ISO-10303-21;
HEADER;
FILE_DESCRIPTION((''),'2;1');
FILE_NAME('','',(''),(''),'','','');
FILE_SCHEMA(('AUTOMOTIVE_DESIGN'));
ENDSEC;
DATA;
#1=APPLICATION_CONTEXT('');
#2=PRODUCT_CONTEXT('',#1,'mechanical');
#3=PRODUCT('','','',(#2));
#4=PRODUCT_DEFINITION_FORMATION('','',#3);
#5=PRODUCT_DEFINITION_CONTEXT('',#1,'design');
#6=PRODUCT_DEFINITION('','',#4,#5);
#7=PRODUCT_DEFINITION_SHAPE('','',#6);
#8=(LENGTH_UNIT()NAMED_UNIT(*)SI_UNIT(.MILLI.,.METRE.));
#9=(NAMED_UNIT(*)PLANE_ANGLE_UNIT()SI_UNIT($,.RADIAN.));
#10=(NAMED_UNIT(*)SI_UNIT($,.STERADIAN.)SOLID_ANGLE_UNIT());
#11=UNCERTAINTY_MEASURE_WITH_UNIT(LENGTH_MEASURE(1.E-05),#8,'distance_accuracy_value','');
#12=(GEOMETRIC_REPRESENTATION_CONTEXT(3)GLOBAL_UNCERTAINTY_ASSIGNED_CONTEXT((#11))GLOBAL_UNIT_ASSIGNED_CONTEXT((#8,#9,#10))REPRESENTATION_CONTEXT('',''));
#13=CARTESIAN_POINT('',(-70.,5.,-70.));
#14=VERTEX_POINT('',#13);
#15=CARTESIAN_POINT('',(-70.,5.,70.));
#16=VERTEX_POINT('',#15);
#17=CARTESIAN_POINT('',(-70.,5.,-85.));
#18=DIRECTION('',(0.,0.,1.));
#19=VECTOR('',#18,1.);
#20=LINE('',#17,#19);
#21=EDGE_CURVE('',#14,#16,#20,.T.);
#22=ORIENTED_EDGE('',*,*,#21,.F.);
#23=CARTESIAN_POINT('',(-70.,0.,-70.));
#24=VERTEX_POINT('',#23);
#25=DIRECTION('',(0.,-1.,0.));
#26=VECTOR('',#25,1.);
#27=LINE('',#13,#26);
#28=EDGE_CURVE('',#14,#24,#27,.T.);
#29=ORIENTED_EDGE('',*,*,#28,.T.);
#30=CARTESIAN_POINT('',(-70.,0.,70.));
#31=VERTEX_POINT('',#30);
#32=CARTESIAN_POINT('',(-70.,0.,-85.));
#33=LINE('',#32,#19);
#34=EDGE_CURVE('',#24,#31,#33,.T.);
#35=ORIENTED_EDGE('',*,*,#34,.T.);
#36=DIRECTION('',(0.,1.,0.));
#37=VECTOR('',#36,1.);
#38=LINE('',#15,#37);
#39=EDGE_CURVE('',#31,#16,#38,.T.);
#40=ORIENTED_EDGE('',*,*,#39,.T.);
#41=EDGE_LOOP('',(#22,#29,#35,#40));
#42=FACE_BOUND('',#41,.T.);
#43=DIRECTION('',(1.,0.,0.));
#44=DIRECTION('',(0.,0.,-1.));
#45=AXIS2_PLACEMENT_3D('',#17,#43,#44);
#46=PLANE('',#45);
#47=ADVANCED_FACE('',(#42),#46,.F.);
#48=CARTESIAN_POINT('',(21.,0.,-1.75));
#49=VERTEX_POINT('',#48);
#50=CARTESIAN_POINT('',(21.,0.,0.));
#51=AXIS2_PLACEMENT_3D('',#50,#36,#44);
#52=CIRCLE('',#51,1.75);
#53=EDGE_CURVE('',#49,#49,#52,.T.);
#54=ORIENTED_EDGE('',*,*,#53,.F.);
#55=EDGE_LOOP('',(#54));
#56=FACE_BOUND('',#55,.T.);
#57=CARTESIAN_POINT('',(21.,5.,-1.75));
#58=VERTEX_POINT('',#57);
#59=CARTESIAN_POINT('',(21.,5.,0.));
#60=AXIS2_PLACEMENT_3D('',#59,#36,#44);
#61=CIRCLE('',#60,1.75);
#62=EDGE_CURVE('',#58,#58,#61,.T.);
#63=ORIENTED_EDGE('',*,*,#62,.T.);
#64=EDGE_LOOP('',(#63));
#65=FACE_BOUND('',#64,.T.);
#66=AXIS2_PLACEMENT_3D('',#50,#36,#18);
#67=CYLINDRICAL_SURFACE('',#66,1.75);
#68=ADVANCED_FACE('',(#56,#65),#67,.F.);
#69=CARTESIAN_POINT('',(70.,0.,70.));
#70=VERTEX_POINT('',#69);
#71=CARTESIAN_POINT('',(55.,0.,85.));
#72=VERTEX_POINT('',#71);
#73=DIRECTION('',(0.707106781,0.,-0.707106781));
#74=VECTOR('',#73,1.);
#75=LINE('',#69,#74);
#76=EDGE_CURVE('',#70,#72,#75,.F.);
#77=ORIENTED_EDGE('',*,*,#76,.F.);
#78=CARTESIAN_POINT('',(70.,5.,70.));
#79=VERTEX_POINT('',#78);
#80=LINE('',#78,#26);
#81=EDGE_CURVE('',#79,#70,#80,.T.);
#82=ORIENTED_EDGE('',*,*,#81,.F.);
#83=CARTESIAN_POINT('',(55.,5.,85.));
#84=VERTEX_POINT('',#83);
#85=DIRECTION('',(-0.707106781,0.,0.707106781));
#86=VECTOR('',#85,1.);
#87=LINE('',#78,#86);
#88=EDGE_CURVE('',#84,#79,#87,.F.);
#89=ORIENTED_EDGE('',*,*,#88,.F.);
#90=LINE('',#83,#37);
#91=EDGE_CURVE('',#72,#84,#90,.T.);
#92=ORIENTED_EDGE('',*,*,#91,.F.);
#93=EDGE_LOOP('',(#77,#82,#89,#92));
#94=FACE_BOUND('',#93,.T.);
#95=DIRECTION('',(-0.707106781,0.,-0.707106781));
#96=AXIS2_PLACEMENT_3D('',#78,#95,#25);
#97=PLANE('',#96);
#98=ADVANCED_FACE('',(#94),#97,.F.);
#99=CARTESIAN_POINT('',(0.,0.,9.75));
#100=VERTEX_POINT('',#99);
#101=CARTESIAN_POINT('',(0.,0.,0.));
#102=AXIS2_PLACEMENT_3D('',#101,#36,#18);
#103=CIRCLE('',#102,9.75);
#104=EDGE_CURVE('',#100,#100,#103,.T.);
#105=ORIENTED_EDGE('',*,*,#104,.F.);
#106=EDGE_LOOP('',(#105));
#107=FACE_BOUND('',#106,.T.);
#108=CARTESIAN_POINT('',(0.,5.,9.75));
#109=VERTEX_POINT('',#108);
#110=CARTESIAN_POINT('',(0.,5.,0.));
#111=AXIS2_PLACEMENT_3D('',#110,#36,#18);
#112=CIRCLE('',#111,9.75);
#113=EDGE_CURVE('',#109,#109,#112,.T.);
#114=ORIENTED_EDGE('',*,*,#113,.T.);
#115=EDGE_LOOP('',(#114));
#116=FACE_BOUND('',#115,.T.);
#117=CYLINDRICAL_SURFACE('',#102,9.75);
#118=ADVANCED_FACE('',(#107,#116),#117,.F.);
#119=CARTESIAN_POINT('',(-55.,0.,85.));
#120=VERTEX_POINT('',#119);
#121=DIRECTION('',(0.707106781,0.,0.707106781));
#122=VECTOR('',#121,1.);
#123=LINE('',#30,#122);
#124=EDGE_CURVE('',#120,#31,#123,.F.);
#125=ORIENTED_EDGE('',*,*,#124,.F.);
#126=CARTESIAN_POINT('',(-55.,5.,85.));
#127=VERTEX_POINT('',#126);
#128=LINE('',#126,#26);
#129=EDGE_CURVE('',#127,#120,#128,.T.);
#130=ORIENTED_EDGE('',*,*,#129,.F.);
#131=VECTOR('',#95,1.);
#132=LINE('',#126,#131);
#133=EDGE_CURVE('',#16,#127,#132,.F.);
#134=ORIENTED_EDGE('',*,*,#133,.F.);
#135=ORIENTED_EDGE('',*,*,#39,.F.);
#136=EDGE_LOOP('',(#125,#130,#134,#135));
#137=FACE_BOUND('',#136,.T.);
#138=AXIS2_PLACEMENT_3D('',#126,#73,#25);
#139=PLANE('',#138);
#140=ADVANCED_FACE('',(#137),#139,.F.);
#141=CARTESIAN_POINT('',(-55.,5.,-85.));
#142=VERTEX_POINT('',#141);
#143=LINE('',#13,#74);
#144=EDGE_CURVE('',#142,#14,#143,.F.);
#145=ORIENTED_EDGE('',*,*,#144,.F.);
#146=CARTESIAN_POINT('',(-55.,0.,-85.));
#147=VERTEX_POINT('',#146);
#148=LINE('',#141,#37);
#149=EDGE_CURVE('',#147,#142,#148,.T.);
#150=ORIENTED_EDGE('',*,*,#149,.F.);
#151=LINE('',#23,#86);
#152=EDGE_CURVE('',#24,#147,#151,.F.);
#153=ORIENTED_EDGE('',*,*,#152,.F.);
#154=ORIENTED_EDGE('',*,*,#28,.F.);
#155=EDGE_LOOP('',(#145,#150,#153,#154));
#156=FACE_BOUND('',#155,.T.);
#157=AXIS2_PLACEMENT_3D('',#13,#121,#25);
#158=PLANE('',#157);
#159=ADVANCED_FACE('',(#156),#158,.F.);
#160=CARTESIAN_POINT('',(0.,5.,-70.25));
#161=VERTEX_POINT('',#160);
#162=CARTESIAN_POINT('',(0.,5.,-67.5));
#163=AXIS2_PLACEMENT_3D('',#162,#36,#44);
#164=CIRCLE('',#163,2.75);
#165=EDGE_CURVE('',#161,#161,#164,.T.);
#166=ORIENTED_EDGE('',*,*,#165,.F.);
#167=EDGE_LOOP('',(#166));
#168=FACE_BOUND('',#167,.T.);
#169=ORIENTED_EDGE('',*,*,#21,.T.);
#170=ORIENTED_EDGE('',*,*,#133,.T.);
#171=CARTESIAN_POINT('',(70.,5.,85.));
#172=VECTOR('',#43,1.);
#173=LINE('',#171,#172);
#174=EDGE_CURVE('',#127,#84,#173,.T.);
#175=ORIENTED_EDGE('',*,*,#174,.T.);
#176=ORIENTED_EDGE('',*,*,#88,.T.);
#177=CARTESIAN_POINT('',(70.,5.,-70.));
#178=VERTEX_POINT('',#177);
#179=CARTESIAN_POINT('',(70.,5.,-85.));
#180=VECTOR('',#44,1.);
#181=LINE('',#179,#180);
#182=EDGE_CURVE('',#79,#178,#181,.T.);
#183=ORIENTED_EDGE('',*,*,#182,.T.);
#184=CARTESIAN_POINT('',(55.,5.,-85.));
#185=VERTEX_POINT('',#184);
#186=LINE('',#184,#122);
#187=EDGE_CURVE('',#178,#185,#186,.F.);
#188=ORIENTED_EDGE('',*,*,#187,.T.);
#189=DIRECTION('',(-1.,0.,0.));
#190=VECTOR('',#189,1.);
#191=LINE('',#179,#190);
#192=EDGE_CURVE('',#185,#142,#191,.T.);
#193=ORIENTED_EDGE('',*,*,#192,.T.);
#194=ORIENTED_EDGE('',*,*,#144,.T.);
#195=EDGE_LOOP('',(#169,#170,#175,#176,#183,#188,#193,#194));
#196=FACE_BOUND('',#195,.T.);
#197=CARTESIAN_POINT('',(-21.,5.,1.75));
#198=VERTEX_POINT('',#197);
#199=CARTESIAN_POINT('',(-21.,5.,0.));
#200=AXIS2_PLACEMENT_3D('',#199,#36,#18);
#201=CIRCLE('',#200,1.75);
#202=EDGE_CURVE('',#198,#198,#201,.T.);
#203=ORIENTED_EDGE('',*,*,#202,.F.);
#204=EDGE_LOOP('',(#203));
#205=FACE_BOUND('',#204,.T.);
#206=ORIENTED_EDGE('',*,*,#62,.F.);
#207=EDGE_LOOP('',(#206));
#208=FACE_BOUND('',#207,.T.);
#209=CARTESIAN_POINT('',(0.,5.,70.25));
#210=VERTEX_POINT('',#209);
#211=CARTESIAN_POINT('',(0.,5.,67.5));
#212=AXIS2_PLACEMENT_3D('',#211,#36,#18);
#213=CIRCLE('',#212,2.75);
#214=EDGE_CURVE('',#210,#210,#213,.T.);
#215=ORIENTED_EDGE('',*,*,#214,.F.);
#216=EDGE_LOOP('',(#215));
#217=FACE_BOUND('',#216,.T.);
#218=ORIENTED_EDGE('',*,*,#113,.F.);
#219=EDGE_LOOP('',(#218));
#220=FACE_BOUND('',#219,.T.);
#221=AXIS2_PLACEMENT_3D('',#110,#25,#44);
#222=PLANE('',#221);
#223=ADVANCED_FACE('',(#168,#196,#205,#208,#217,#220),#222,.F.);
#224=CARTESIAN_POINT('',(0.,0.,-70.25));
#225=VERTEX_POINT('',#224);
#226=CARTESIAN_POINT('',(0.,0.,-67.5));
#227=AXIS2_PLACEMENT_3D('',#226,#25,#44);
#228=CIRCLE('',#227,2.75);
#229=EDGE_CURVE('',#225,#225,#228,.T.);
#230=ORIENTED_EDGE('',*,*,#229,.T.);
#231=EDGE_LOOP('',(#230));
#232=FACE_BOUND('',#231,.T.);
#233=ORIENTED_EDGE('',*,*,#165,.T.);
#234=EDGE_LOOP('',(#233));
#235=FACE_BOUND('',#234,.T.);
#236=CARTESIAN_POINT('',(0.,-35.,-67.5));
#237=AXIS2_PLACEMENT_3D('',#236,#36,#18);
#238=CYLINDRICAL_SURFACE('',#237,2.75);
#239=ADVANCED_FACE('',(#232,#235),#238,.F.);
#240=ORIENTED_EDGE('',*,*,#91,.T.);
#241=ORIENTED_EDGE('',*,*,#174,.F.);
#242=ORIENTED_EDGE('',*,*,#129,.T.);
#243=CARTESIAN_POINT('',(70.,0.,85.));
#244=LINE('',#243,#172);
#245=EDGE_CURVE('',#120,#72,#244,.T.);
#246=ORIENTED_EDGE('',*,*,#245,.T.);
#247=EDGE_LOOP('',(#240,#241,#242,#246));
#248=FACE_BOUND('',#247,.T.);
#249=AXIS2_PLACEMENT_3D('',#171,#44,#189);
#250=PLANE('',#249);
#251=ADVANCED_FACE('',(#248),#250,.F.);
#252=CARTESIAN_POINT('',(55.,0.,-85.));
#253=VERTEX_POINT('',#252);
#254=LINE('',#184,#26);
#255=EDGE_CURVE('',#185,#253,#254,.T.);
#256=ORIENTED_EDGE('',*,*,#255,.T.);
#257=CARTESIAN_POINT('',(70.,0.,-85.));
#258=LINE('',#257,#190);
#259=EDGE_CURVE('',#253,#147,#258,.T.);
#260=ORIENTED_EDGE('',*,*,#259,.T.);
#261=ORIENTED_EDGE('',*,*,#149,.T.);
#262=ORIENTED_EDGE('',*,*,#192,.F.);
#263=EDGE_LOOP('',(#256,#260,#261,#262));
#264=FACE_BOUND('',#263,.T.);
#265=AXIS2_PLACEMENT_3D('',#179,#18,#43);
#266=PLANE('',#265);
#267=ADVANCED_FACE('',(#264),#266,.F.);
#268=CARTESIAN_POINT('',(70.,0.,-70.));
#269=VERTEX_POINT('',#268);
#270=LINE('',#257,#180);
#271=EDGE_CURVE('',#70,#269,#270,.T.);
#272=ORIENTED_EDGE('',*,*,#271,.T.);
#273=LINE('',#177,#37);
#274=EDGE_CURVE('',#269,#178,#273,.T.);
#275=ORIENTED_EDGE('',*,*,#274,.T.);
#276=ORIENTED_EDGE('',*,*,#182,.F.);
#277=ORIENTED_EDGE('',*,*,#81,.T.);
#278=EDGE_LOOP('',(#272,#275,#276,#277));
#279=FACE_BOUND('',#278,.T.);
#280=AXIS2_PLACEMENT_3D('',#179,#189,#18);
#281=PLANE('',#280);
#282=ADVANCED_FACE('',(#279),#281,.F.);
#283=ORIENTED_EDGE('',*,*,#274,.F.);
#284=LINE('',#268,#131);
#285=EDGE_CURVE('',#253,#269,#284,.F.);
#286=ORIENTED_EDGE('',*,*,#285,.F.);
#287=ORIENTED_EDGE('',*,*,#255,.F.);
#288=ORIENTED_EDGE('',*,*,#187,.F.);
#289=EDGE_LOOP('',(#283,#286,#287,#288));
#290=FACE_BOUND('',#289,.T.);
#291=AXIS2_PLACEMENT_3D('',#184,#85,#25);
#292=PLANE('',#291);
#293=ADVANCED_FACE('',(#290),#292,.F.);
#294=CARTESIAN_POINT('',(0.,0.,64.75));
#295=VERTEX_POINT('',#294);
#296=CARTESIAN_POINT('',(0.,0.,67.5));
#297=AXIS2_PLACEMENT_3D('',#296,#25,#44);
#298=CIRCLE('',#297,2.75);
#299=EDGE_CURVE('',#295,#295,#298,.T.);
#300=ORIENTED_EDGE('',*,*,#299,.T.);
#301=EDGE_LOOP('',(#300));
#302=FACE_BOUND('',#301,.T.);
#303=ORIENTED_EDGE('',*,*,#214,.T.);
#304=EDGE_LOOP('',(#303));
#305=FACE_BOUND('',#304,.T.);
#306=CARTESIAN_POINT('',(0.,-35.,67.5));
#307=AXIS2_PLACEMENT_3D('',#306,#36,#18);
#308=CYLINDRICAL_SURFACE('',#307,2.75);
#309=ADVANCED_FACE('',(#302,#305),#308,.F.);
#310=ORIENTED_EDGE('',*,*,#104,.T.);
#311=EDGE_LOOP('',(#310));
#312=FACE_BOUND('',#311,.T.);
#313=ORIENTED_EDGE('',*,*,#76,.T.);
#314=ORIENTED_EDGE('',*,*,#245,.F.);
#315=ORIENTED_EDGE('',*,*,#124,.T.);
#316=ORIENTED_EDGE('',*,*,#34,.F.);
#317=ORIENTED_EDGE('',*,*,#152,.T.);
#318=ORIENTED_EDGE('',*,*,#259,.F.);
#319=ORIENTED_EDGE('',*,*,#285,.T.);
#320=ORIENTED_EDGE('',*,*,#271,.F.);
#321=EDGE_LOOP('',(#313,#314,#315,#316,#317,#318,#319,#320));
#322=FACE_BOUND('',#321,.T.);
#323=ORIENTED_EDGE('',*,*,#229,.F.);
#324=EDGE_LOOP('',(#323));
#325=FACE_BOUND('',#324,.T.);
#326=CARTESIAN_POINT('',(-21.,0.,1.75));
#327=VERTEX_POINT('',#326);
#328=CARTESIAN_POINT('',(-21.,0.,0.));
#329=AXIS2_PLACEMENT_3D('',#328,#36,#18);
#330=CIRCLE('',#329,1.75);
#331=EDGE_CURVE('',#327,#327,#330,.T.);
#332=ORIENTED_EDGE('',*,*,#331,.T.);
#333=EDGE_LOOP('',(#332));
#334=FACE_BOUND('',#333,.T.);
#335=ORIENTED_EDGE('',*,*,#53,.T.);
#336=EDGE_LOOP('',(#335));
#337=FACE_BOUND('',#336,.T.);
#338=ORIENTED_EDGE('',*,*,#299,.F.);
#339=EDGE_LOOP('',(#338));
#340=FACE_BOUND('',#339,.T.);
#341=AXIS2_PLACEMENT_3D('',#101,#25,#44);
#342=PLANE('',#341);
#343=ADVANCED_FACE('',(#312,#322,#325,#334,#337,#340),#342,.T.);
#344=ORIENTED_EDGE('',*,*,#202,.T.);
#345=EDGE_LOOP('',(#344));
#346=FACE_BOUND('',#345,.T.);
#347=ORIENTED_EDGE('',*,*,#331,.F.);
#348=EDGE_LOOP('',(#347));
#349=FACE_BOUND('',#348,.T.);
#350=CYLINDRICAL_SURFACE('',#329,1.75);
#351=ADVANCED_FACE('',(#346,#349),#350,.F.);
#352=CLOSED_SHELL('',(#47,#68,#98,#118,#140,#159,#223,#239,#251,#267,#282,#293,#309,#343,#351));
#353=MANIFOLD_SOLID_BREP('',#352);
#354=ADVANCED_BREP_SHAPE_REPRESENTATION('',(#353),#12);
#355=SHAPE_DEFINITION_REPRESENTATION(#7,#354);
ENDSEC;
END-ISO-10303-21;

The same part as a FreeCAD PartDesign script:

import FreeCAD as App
import Part
import Sketcher
Q = App.Units.Quantity


def edges_at(feature, points):
    """Names of the edges that pass closest to the given points."""
    edges = feature.Shape.Edges
    near = lambda p: min(range(len(edges)), key=lambda i: edges[i].distToShape(Part.Vertex(*p))[0])
    return sorted({f"Edge{near(p) + 1}" for p in points})


def add_polygon(sketch, points):
    """Adds a closed chain of lines whose ends are joined by coincident constraints."""
    first, n = sketch.GeometryCount, len(points)
    for a, b in zip(points, points[1:] + points[:1]):
        sketch.addGeometry(Part.LineSegment(App.Vector(*a, 0), App.Vector(*b, 0)), False)
    for i in range(n):
        sketch.addConstraint(Sketcher.Constraint("Coincident", first + i, 2, first + (i + 1) % n, 1))

doc = App.newDocument("Part")
body = doc.addObject("PartDesign::Body", "Body")

# Sketch on XZ plane
sketch1 = body.newObject("Sketcher::SketchObject", "Sketch")
sketch1.AttachmentSupport = (doc.getObject("XZ_Plane"), [""])
sketch1.MapMode = "FlatFace"
add_polygon(sketch1, [(-70, -85), (-70, 85), (70, 85), (70, -85)])  # lines 0-3
sketch1.addConstraint([
    Sketcher.Constraint("Vertical", 0),
    Sketcher.Constraint("Horizontal", 1),
    Sketcher.Constraint("Vertical", 2),
    Sketcher.Constraint("Horizontal", 3),
    Sketcher.Constraint("Symmetric", 0, 2, 2, 2, -1, 1),
    Sketcher.Constraint("DistanceX", 1, 1, 1, 2, Q("140 mm")),
    Sketcher.Constraint("DistanceY", 0, 1, 0, 2, Q("170 mm")),
])
pad1 = body.newObject("PartDesign::Pad", "Pad")
pad1.Profile = sketch1
pad1.Length = 5
pad1.Reversed = True
doc.recompute()

chamfer = body.newObject("PartDesign::Chamfer", "Chamfer")
chamfer.Base = (pad1, edges_at(pad1, [
    (-70, 2.5, -85),
    (70, 2.5, -85),
    (70, 2.5, 85),
    (-70, 2.5, 85),
]))
chamfer.Size = 15

# Sketch on XZ plane
sketch2 = body.newObject("Sketcher::SketchObject", "Sketch001")
sketch2.AttachmentSupport = (doc.getObject("XZ_Plane"), [""])
sketch2.MapMode = "FlatFace"
sketch2.AttachmentOffset = App.Placement(App.Vector(0, 0, -5), App.Rotation())
sketch2.addGeometry(Part.Circle(App.Vector(0, 0, 0), App.Vector(0, 0, 1), 9.75), False)
sketch2.addConstraint([
    Sketcher.Constraint("Coincident", 0, 3, -1, 1),
    Sketcher.Constraint("Diameter", 0, Q("19.5 mm")),
])
pocket1 = body.newObject("PartDesign::Pocket", "Pocket")
pocket1.Profile = sketch2
pocket1.Length = 5
pocket1.Reversed = True

# Sketch on XZ plane
sketch3 = body.newObject("Sketcher::SketchObject", "Sketch002")
sketch3.AttachmentSupport = (doc.getObject("XZ_Plane"), [""])
sketch3.MapMode = "FlatFace"
sketch3.AttachmentOffset = App.Placement(App.Vector(0, 0, -5), App.Rotation())
sketch3.addGeometry([
    Part.Circle(App.Vector(0, 67.5, 0), App.Vector(0, 0, 1), 2.75),
    Part.Circle(App.Vector(0, -67.5, 0), App.Vector(0, 0, 1), 2.75),
], False)
sketch3.addConstraint([
    Sketcher.Constraint("Equal", 0, 1),
    Sketcher.Constraint("Symmetric", 0, 3, 1, 3, -1, 1),
    Sketcher.Constraint("PointOnObject", 0, 3, -2),
    Sketcher.Constraint("Diameter", 0, Q("5.5 mm")),
    Sketcher.Constraint("DistanceY", 1, 3, 0, 3, Q("135 mm")),
])
pocket2 = body.newObject("PartDesign::Pocket", "Pocket001")
pocket2.Profile = sketch3
pocket2.Length = 40
pocket2.Reversed = True

# Sketch on XZ plane
sketch4 = body.newObject("Sketcher::SketchObject", "Sketch003")
sketch4.AttachmentSupport = (doc.getObject("XZ_Plane"), [""])
sketch4.MapMode = "FlatFace"
sketch4.AttachmentOffset = App.Placement(App.Vector(0, 0, -5), App.Rotation())
sketch4.addGeometry([
    Part.Circle(App.Vector(-21, 0, 0), App.Vector(0, 0, 1), 1.75),
    Part.Circle(App.Vector(21, 0, 0), App.Vector(0, 0, 1), 1.75),
], False)
sketch4.addConstraint([
    Sketcher.Constraint("Equal", 0, 1),
    Sketcher.Constraint("Symmetric", 0, 3, 1, 3, -1, 1),
    Sketcher.Constraint("PointOnObject", 0, 3, -1),
    Sketcher.Constraint("Diameter", 0, Q("3.5 mm")),
    Sketcher.Constraint("DistanceX", 0, 3, -1, 1, Q("21 mm")),
])
pocket3 = body.newObject("PartDesign::Pocket", "Pocket002")
pocket3.Profile = sketch4
pocket3.Type = "ThroughAll"
pocket3.Reversed = True

doc.recompute()
